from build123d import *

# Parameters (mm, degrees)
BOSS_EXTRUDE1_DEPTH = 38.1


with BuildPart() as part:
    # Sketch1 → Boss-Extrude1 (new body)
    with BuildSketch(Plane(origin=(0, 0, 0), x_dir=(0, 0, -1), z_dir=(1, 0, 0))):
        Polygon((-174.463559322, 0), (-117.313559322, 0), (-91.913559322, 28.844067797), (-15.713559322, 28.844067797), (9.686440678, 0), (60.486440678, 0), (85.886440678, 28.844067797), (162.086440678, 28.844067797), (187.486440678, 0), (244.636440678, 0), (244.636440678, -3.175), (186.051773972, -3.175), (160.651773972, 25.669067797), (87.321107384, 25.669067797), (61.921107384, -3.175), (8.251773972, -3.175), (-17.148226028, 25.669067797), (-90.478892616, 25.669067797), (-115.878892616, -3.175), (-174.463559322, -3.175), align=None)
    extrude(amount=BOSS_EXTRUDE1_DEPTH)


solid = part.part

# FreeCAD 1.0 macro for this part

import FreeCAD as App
import Part
import Sketcher
Q = App.Units.Quantity

doc = App.newDocument("Part")
body = doc.addObject("PartDesign::Body", "Body")

# Sketch on YZ plane
sketch1 = doc.addObject("Sketcher::SketchObject", "Sketch")
body.addObject(sketch1)
sketch1.AttachmentSupport = (doc.YZ_Plane, [""])
sketch1.MapMode = "FlatFace"
sketch1.addGeometry([
    Part.LineSegment(App.Vector(0, 117.3, 0), App.Vector(0, 174.5, 0)),  # 0
    Part.LineSegment(App.Vector(0, 174.5, 0), App.Vector(-3.2, 174.5, 0)),  # 1
    Part.LineSegment(App.Vector(-3.2, 174.5, 0), App.Vector(-3.2, 115.9, 0)),  # 2
    Part.LineSegment(App.Vector(-3.2, 115.9, 0), App.Vector(25.7, 90.5, 0)),  # 3
    Part.LineSegment(App.Vector(25.7, 90.5, 0), App.Vector(25.7, 17.1, 0)),  # 4
    Part.LineSegment(App.Vector(25.7, 17.1, 0), App.Vector(-3.2, -8.3, 0)),  # 5
    Part.LineSegment(App.Vector(-3.2, -8.3, 0), App.Vector(-3.2, -61.9, 0)),  # 6
    Part.LineSegment(App.Vector(-3.2, -61.9, 0), App.Vector(25.7, -87.3, 0)),  # 7
    Part.LineSegment(App.Vector(25.7, -87.3, 0), App.Vector(25.7, -160.7, 0)),  # 8
    Part.LineSegment(App.Vector(25.7, -160.7, 0), App.Vector(-3.2, -186.1, 0)),  # 9
    Part.LineSegment(App.Vector(-3.2, -186.1, 0), App.Vector(-3.2, -244.6, 0)),  # 10
    Part.LineSegment(App.Vector(-3.2, -244.6, 0), App.Vector(0, -244.6, 0)),  # 11
    Part.LineSegment(App.Vector(0, -244.6, 0), App.Vector(0, -187.5, 0)),  # 12
    Part.LineSegment(App.Vector(0, -187.5, 0), App.Vector(28.8, -162.1, 0)),  # 13
    Part.LineSegment(App.Vector(28.8, -162.1, 0), App.Vector(28.8, -85.9, 0)),  # 14
    Part.LineSegment(App.Vector(28.8, -85.9, 0), App.Vector(0, -60.5, 0)),  # 15
    Part.LineSegment(App.Vector(0, -60.5, 0), App.Vector(0, -9.7, 0)),  # 16
    Part.LineSegment(App.Vector(0, -9.7, 0), App.Vector(28.8, 15.7, 0)),  # 17
    Part.LineSegment(App.Vector(28.8, 15.7, 0), App.Vector(28.8, 91.9, 0)),  # 18
    Part.LineSegment(App.Vector(28.8, 91.9, 0), App.Vector(0, 117.3, 0)),  # 19
], False)
sketch1.addConstraint([
    Sketcher.Constraint("Coincident", 0, 2, 1, 1),
    Sketcher.Constraint("Coincident", 1, 2, 2, 1),
    Sketcher.Constraint("Coincident", 2, 2, 3, 1),
    Sketcher.Constraint("Coincident", 3, 2, 4, 1),
    Sketcher.Constraint("Coincident", 4, 2, 5, 1),
    Sketcher.Constraint("Coincident", 5, 2, 6, 1),
    Sketcher.Constraint("Coincident", 6, 2, 7, 1),
    Sketcher.Constraint("Coincident", 7, 2, 8, 1),
    Sketcher.Constraint("Coincident", 8, 2, 9, 1),
    Sketcher.Constraint("Coincident", 9, 2, 10, 1),
    Sketcher.Constraint("Coincident", 10, 2, 11, 1),
    Sketcher.Constraint("Coincident", 11, 2, 12, 1),
    Sketcher.Constraint("Coincident", 12, 2, 13, 1),
    Sketcher.Constraint("Coincident", 13, 2, 14, 1),
    Sketcher.Constraint("Coincident", 14, 2, 15, 1),
    Sketcher.Constraint("Coincident", 15, 2, 16, 1),
    Sketcher.Constraint("Coincident", 16, 2, 17, 1),
    Sketcher.Constraint("Coincident", 17, 2, 18, 1),
    Sketcher.Constraint("Coincident", 18, 2, 19, 1),
    Sketcher.Constraint("Coincident", 19, 2, 0, 1),
    Sketcher.Constraint("Vertical", 0),
    Sketcher.Constraint("Horizontal", 1),
    Sketcher.Constraint("Vertical", 2),
    Sketcher.Constraint("Vertical", 4),
    Sketcher.Constraint("Vertical", 6),
    Sketcher.Constraint("Vertical", 8),
    Sketcher.Constraint("Vertical", 10),
    Sketcher.Constraint("Horizontal", 11),
    Sketcher.Constraint("Vertical", 12),
    Sketcher.Constraint("Vertical", 14),
    Sketcher.Constraint("Vertical", 16),
    Sketcher.Constraint("Vertical", 18),
    Sketcher.Constraint("PointOnObject", 0, 2, -2),
    Sketcher.Constraint("PointOnObject", 11, 2, -2),
    Sketcher.Constraint("PointOnObject", 15, 2, -2),
    Sketcher.Constraint("Parallel", 3, 7),
    Sketcher.Constraint("Parallel", 5, 9),
    Sketcher.Constraint("Parallel", 9, 13),
    Sketcher.Constraint("Parallel", 7, 15),
    Sketcher.Constraint("Parallel", 13, 17),
    Sketcher.Constraint("Parallel", 15, 19),
    Sketcher.Constraint("Vertical", 2, 2, 5, 2),
    Sketcher.Constraint("Vertical", 4, 2, 7, 2),
    Sketcher.Constraint("Vertical", 6, 2, 9, 2),
    Sketcher.Constraint("Vertical", 14, 2, 17, 2),
    Sketcher.Constraint("Equal", 4, 8),
    Sketcher.Constraint("Equal", 2, 10),
    Sketcher.Constraint("Equal", 0, 12),
    Sketcher.Constraint("Equal", 14, 18),
    Sketcher.Constraint("Equal", 3, 5),
    Sketcher.Constraint("Equal", 9, 13),
    Sketcher.Constraint("DistanceY", 14, 1, 14, 2, Q("3 in")),
    Sketcher.Constraint("DistanceY", 16, 1, 16, 2, Q("2 in")),
    Sketcher.Constraint("DistanceY", 3, 2, 2, 2, Q("1 in")),
    Sketcher.Constraint("DistanceY", 6, 2, 3, 2, Q("6 in")),
    Sketcher.Constraint("DistanceY", 0, 1, 0, 2, Q("2.25 in")),
    Sketcher.Constraint("DistanceX", 1, 2, 1, 1, Q("0.125 in")),
    Sketcher.Constraint("DistanceY", 2, 2, 2, 1, 58.584667),
    Sketcher.Constraint("DistanceY", -1, 1, 0, 2, 174.463559),
    Sketcher.Constraint("Distance", 3, 38.433582),
])
pad1 = doc.addObject("PartDesign::Pad", "Pad")
body.addObject(pad1)
pad1.Profile = sketch1
pad1.Length = Q("1.5 in")

doc.recompute()
